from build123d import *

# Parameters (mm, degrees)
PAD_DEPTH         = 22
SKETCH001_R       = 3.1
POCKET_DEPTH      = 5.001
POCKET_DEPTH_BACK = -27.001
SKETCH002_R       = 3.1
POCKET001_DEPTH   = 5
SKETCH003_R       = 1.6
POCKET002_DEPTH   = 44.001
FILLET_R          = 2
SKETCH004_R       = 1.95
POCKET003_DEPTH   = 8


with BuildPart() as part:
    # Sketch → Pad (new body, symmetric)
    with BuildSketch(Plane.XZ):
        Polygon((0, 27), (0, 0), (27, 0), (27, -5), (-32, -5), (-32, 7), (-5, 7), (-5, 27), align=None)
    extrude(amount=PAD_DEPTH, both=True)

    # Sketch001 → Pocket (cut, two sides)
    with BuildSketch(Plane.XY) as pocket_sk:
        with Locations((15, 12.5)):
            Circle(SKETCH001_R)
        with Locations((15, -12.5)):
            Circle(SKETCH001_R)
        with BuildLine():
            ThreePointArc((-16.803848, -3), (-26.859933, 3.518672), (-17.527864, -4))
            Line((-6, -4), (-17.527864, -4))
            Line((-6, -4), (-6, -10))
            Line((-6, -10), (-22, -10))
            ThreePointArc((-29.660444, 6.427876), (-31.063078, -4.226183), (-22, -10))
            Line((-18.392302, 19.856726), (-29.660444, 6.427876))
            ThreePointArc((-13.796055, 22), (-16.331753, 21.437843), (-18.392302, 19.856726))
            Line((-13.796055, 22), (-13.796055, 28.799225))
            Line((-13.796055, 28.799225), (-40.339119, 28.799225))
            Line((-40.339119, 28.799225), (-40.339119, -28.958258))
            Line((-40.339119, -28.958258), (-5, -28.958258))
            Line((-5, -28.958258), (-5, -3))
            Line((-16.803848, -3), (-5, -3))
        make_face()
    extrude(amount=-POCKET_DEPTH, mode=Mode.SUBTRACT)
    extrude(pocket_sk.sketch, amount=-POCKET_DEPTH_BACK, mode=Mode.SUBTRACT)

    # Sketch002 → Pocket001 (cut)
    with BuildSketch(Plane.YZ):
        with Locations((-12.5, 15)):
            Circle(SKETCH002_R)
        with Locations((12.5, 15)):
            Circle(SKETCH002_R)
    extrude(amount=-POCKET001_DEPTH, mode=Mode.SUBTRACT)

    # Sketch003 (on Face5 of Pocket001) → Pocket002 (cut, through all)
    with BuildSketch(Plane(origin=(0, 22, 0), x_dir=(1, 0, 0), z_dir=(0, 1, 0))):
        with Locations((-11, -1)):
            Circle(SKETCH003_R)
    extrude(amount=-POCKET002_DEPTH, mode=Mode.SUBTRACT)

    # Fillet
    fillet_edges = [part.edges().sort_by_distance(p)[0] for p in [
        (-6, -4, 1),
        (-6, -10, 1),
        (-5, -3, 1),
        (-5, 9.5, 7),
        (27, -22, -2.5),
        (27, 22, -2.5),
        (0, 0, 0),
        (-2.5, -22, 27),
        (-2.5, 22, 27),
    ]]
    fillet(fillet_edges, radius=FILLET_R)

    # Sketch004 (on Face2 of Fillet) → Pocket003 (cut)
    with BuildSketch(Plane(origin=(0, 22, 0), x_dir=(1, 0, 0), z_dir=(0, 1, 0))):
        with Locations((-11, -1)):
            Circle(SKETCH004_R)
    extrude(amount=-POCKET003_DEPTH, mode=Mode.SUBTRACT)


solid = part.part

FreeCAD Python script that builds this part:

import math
import FreeCAD as App
import Part
import Sketcher
from FreeCAD import Vector
Q = App.Units.Quantity


def edges_at(feature, points):
    """Names of the edges that pass closest to the given points."""
    edges = feature.Shape.Edges
    near = lambda p: min(range(len(edges)), key=lambda i: edges[i].distToShape(Part.Vertex(*p))[0])
    return sorted({f"Edge{near(p) + 1}" for p in points})

doc = App.newDocument("Part")
params = doc.addObject("Spreadsheet::Sheet", "Params")
for row, (alias, value) in enumerate([
    ("sketch1_width", "5 mm"),
    ("sketch1_width2", "27 mm"),
    ("sketch1_height", "20 mm"),
    ("pad1_length", "44 mm"),
    ("sketch2_radius", "6 mm"),
    ("sketch2_radius2", "9.999999 mm"),
    ("sketch2_diameter", "6.2 mm"),
    ("sketch2_width", "16 mm"),
    ("sketch2_height", "6 mm"),
    ("sketch3_diameter", "6.2 mm"),
    ("pocket2_length", "5 mm"),
    ("sketch4_diameter", "3.2 mm"),
    ("fillet_radius", "2 mm"),
    ("sketch5_diameter", "3.9 mm"),
    ("pocket4_length", "8 mm"),
], start=1):
    params.set(f"A{row}", alias)
    params.set(f"B{row}", "=" + value)
    params.setAlias(f"B{row}", alias)

body = doc.addObject("PartDesign::Body", "Body")

sketch1 = doc.addObject("Sketcher::SketchObject", "Sketch")
body.addObject(sketch1)
sketch1.AttachmentSupport = (doc.XZ_Plane, [""])
sketch1.MapMode = "FlatFace"
sketch1.addGeometry(Part.LineSegment(Vector(0, 0, 0), Vector(0, 27, 0)), False)
sketch1.addGeometry(Part.LineSegment(Vector(0, 27, 0), Vector(-5, 27, 0)), False)
sketch1.addGeometry(Part.LineSegment(Vector(-5, 27, 0), Vector(-5, 7, 0)), False)
sketch1.addGeometry(Part.LineSegment(Vector(-5, 7, 0), Vector(-32, 7, 0)), False)
sketch1.addGeometry(Part.LineSegment(Vector(-32, 7, 0), Vector(-32, -5, 0)), False)
sketch1.addGeometry(Part.LineSegment(Vector(-32, -5, 0), Vector(27, -5, 0)), False)
sketch1.addGeometry(Part.LineSegment(Vector(27, -5, 0), Vector(27, 0, 0)), False)
sketch1.addGeometry(Part.LineSegment(Vector(27, 0, 0), Vector(0, 0, 0)), False)
sketch1.addConstraint(Sketcher.Constraint("Coincident", 0, 2, 1, 1))
sketch1.addConstraint(Sketcher.Constraint("Coincident", 1, 2, 2, 1))
sketch1.addConstraint(Sketcher.Constraint("Coincident", 2, 2, 3, 1))
sketch1.addConstraint(Sketcher.Constraint("Coincident", 3, 2, 4, 1))
sketch1.addConstraint(Sketcher.Constraint("Coincident", 4, 2, 5, 1))
sketch1.addConstraint(Sketcher.Constraint("Coincident", 5, 2, 6, 1))
sketch1.addConstraint(Sketcher.Constraint("Coincident", 6, 2, 7, 1))
sketch1.addConstraint(Sketcher.Constraint("Coincident", 7, 2, 0, 1))
sketch1.addConstraint(Sketcher.Constraint("Vertical", 0))
sketch1.addConstraint(Sketcher.Constraint("Horizontal", 1))
sketch1.addConstraint(Sketcher.Constraint("Vertical", 2))
sketch1.addConstraint(Sketcher.Constraint("Horizontal", 3))
sketch1.addConstraint(Sketcher.Constraint("Vertical", 4))
sketch1.addConstraint(Sketcher.Constraint("Horizontal", 5))
sketch1.addConstraint(Sketcher.Constraint("Vertical", 6))
sketch1.addConstraint(Sketcher.Constraint("Horizontal", 7))
sketch1.addConstraint(Sketcher.Constraint("Coincident", 7, 2, -1, 1))
sketch1.addConstraint(Sketcher.Constraint("Equal", 3, 7))
sketch1.addConstraint(Sketcher.Constraint("Equal", 7, 0))
sketch1.addConstraint(Sketcher.Constraint("Equal", 1, 6))
sketch1.addConstraint(Sketcher.Constraint("DistanceX", 1, 2, 1, 1, 5.0))
sketch1.addConstraint(Sketcher.Constraint("DistanceX", 3, 2, 3, 1, 27.0))
sketch1.addConstraint(Sketcher.Constraint("DistanceY", 2, 2, 2, 1, 20.0))
sketch1.setExpression("Constraints[20]", "Params.sketch1_width")
sketch1.setExpression("Constraints[21]", "Params.sketch1_width2")
sketch1.setExpression("Constraints[22]", "Params.sketch1_height")
pad1 = doc.addObject("PartDesign::Pad", "Pad")
body.addObject(pad1)
pad1.Profile = sketch1
pad1.setExpression("Length", "Params.pad1_length")
pad1.Midplane = True

sketch2 = doc.addObject("Sketcher::SketchObject", "Sketch001")
body.addObject(sketch2)
sketch2.AttachmentSupport = (doc.XY_Plane, [""])
sketch2.MapMode = "FlatFace"
sketch2.addGeometry(Part.Circle(Vector(15, 12.5, 0), Vector(0, 0, 1), 3.1), False)
sketch2.addGeometry(Part.Circle(Vector(15, -12.5, 0), Vector(0, 0, 1), 3.1), False)
sketch2.addGeometry(Part.ArcOfCircle(Part.Circle(Vector(-22, 0, 0), Vector(0, 0, 1), 6), math.radians(-30), math.radians(318)), False)
sketch2.addGeometry(Part.LineSegment(Vector(-17.5, -4, 0), Vector(-6, -4, 0)), False)
sketch2.addGeometry(Part.LineSegment(Vector(-6, -4, 0), Vector(-6, -10, 0)), False)
sketch2.addGeometry(Part.LineSegment(Vector(-6, -10, 0), Vector(-22, -10, 0)), False)
sketch2.addGeometry(Part.ArcOfCircle(Part.Circle(Vector(-22, 0, 0), Vector(0, 0, 1), 10), math.radians(140), math.radians(270)), False)
sketch2.addGeometry(Part.LineSegment(Vector(-29.7, 6.4, 0), Vector(-18.4, 19.9, 0)), False)
sketch2.addGeometry(Part.ArcOfCircle(Part.Circle(Vector(-13.8, 16, 0), Vector(0, 0, 1), 6), math.radians(90), math.radians(140)), False)
sketch2.addGeometry(Part.LineSegment(Vector(-13.8, 22, 0), Vector(-13.8, 28.8, 0)), False)
sketch2.addGeometry(Part.LineSegment(Vector(-13.8, 28.8, 0), Vector(-40.3, 28.8, 0)), False)
sketch2.addGeometry(Part.LineSegment(Vector(-40.3, 28.8, 0), Vector(-40.3, -29, 0)), False)
sketch2.addGeometry(Part.LineSegment(Vector(-40.3, -29, 0), Vector(-5, -29, 0)), False)
sketch2.addGeometry(Part.LineSegment(Vector(-5, -29, 0), Vector(-5, -3, 0)), False)
sketch2.addGeometry(Part.LineSegment(Vector(-5, -3, 0), Vector(-16.8, -3, 0)), False)
sketch2.addConstraint(Sketcher.Constraint("Coincident", 2, 2, 3, 1))
sketch2.addConstraint(Sketcher.Constraint("Coincident", 3, 2, 4, 1))
sketch2.addConstraint(Sketcher.Constraint("Coincident", 4, 2, 5, 1))
sketch2.addConstraint(Sketcher.Constraint("Tangent", 5, 2, 6, 2))
sketch2.addConstraint(Sketcher.Constraint("Tangent", 6, 1, 7, 1))
sketch2.addConstraint(Sketcher.Constraint("Tangent", 7, 2, 8, 2))
sketch2.addConstraint(Sketcher.Constraint("Coincident", 8, 1, 9, 1))
sketch2.addConstraint(Sketcher.Constraint("Coincident", 9, 2, 10, 1))
sketch2.addConstraint(Sketcher.Constraint("Coincident", 10, 2, 11, 1))
sketch2.addConstraint(Sketcher.Constraint("Coincident", 11, 2, 12, 1))
sketch2.addConstraint(Sketcher.Constraint("Coincident", 12, 2, 13, 1))
sketch2.addConstraint(Sketcher.Constraint("Coincident", 13, 2, 14, 1))
sketch2.addConstraint(Sketcher.Constraint("Coincident", 14, 2, 2, 1))
sketch2.addConstraint(Sketcher.Constraint("Horizontal", 3))
sketch2.addConstraint(Sketcher.Constraint("Vertical", 4))
sketch2.addConstraint(Sketcher.Constraint("Horizontal", 5))
sketch2.addConstraint(Sketcher.Constraint("Vertical", 9))
sketch2.addConstraint(Sketcher.Constraint("Horizontal", 10))
sketch2.addConstraint(Sketcher.Constraint("Vertical", 11))
sketch2.addConstraint(Sketcher.Constraint("Horizontal", 12))
sketch2.addConstraint(Sketcher.Constraint("Vertical", 13))
sketch2.addConstraint(Sketcher.Constraint("Horizontal", 14))
sketch2.addConstraint(Sketcher.Constraint("Coincident", 6, 3, 2, 3))
sketch2.addConstraint(Sketcher.Constraint("Equal", 0, 1))
sketch2.addConstraint(Sketcher.Constraint("Equal", 2, 8))
sketch2.addConstraint(Sketcher.Constraint("Symmetric", 0, 3, 1, 3, -1))
sketch2.addConstraint(Sketcher.Constraint("PointOnObject", 2, 3, -1))
sketch2.addConstraint(Sketcher.Constraint("Radius", 2, 6.0))
sketch2.addConstraint(Sketcher.Constraint("Radius", 6, 9.999999))
sketch2.addConstraint(Sketcher.Constraint("Diameter", 0, 6.2))
sketch2.addConstraint(Sketcher.Constraint("DistanceX", 5, 2, 5, 1, 16.0))
sketch2.addConstraint(Sketcher.Constraint("DistanceY", 4, 2, 4, 1, 6.0))
sketch2.addConstraint(Sketcher.Constraint("Angle", 7, Q("50.000003 deg")))
sketch2.addConstraint(Sketcher.Constraint("DistanceX", -1, 1, 0, 3, 15.0))
sketch2.addConstraint(Sketcher.Constraint("DistanceX", 2, 3, -1, 1, 22.000001))
sketch2.addConstraint(Sketcher.Constraint("DistanceY", -1, 1, 8, 3, 15.999999))
sketch2.addConstraint(Sketcher.Constraint("DistanceX", 12, 2, -1, 1, 5.0))
sketch2.addConstraint(Sketcher.Constraint("DistanceY", 13, 2, -1, 1, 3.0))
sketch2.addConstraint(Sketcher.Constraint("DistanceY", 1, 3, 0, 3, 25.0))
sketch2.addConstraint(Sketcher.Constraint("DistanceX", 12, 1, 12, 2, 35.339119))
sketch2.addConstraint(Sketcher.Constraint("DistanceY", 13, 1, 13, 2, 25.958258))
sketch2.addConstraint(Sketcher.Constraint("DistanceY", 7, 2, 9, 2, 8.942499))
sketch2.addConstraint(Sketcher.Constraint("DistanceX", 10, 2, 10, 1, 26.543064))
sketch2.setExpression("Constraints[27]", "Params.sketch2_radius")
sketch2.setExpression("Constraints[28]", "Params.sketch2_radius2")
sketch2.setExpression("Constraints[29]", "Params.sketch2_diameter")
sketch2.setExpression("Constraints[30]", "Params.sketch2_width")
sketch2.setExpression("Constraints[31]", "Params.sketch2_height")
pocket1 = doc.addObject("PartDesign::Pocket", "Pocket")
body.addObject(pocket1)
pocket1.Profile = sketch2
pocket1.Type = "ThroughAll"
pocket1.Midplane = True

sketch3 = doc.addObject("Sketcher::SketchObject", "Sketch002")
body.addObject(sketch3)
sketch3.AttachmentSupport = (doc.YZ_Plane, [""])
sketch3.MapMode = "FlatFace"
sketch3.addGeometry(Part.Circle(Vector(-12.5, 15, 0), Vector(0, 0, 1), 3.1), False)
sketch3.addGeometry(Part.Circle(Vector(12.5, 15, 0), Vector(0, 0, 1), 3.1), False)
sketch3.addConstraint(Sketcher.Constraint("Equal", 0, 1))
sketch3.addConstraint(Sketcher.Constraint("Symmetric", 0, 3, 1, 3, -2))
sketch3.addConstraint(Sketcher.Constraint("Diameter", 0, 6.2))
sketch3.addConstraint(Sketcher.Constraint("DistanceY", -1, 1, 0, 3, 15.0))
sketch3.addConstraint(Sketcher.Constraint("DistanceX", 0, 3, 1, 3, 25.0))
sketch3.setExpression("Constraints[2]", "Params.sketch3_diameter")
pocket2 = doc.addObject("PartDesign::Pocket", "Pocket001")
body.addObject(pocket2)
pocket2.Profile = sketch3
pocket2.setExpression("Length", "Params.pocket2_length")

sketch4 = doc.addObject("Sketcher::SketchObject", "Sketch003")
body.addObject(sketch4)
sketch4.AttachmentSupport = (doc.XZ_Plane, [""])
sketch4.MapMode = "FlatFace"
sketch4.AttachmentOffset = App.Placement(Vector(0, 0, -22), App.Rotation())
sketch4.addGeometry(Part.Circle(Vector(-11, 1, 0), Vector(0, 0, 1), 1.6), False)
sketch4.addConstraint(Sketcher.Constraint("Diameter", 0, 3.2))
sketch4.addConstraint(Sketcher.Constraint("DistanceX", 0, 3, -1, 1, 11.0))
sketch4.addConstraint(Sketcher.Constraint("DistanceY", -1, 1, 0, 3, 1.0))
sketch4.setExpression("Constraints[0]", "Params.sketch4_diameter")
pocket3 = doc.addObject("PartDesign::Pocket", "Pocket002")
body.addObject(pocket3)
pocket3.Profile = sketch4
pocket3.Type = "ThroughAll"
pocket3.Reversed = True
doc.recompute()

fillet = doc.addObject("PartDesign::Fillet", "Fillet")
body.addObject(fillet)
fillet.Base = (pocket3, edges_at(pocket3, [
    (-6, -4, 1),
    (-6, -10, 1),
    (-5, -3, 1),
    (-5, 9.5, 7),
    (27, -22, -2.5),
    (27, 22, -2.5),
    (0, 0, 0),
    (-2.5, -22, 27),
    (-2.5, 22, 27),
]))
fillet.setExpression("Radius", "Params.fillet_radius")

sketch5 = doc.addObject("Sketcher::SketchObject", "Sketch004")
body.addObject(sketch5)
sketch5.AttachmentSupport = (doc.XZ_Plane, [""])
sketch5.MapMode = "FlatFace"
sketch5.AttachmentOffset = App.Placement(Vector(0, 0, -22), App.Rotation())
sketch5.addGeometry(Part.Circle(Vector(-11, 1, 0), Vector(0, 0, 1), 1.9), False)
sketch5.addConstraint(Sketcher.Constraint("Diameter", 0, 3.9))
sketch5.addConstraint(Sketcher.Constraint("DistanceX", 0, 3, -1, 1, 11.0))
sketch5.addConstraint(Sketcher.Constraint("DistanceY", -1, 1, 0, 3, 1.0))
sketch5.setExpression("Constraints[0]", "Params.sketch5_diameter")
pocket4 = doc.addObject("PartDesign::Pocket", "Pocket003")
body.addObject(pocket4)
pocket4.Profile = sketch5
pocket4.setExpression("Length", "Params.pocket4_length")
pocket4.Reversed = True

doc.recompute()
